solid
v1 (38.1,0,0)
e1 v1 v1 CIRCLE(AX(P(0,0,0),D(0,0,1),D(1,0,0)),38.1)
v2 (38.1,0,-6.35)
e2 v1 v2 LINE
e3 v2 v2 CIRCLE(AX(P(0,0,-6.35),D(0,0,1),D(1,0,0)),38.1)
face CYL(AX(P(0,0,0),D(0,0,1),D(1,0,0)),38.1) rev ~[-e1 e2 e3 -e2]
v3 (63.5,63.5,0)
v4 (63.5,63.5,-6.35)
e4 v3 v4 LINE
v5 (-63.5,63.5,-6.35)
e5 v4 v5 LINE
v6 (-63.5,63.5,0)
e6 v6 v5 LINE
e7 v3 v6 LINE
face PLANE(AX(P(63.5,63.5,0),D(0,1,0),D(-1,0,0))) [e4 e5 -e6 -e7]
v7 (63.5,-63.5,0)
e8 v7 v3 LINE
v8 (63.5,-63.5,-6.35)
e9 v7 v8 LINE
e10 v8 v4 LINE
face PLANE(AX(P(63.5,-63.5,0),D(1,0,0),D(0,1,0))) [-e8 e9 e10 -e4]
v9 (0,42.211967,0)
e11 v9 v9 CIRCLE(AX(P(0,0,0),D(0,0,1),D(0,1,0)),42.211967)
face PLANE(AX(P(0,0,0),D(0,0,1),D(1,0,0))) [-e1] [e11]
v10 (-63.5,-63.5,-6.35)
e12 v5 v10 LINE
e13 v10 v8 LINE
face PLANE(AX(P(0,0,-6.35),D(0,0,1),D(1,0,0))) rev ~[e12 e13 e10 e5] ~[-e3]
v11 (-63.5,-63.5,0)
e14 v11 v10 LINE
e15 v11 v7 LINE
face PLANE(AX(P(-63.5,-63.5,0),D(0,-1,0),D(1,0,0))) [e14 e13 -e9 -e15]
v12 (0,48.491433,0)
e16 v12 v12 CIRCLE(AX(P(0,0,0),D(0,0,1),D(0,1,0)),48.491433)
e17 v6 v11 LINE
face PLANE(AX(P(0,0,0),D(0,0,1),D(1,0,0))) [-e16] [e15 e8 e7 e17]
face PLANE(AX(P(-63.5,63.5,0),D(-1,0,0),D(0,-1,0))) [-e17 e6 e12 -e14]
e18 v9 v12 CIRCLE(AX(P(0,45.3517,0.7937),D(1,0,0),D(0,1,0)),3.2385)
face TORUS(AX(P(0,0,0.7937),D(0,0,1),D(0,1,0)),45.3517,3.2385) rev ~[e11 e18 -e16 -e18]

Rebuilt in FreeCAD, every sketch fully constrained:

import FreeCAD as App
import Part
import Sketcher
from FreeCAD import Vector
Q = App.Units.Quantity


def add_polygon(sketch, points):
    """Adds a closed chain of lines whose ends are joined by coincident constraints."""
    first, n = sketch.GeometryCount, len(points)
    for a, b in zip(points, points[1:] + points[:1]):
        sketch.addGeometry(Part.LineSegment(App.Vector(*a, 0), App.Vector(*b, 0)), False)
    for i in range(n):
        sketch.addConstraint(Sketcher.Constraint("Coincident", first + i, 2, first + (i + 1) % n, 1))

doc = App.newDocument("Part")
body = doc.addObject("PartDesign::Body", "Body")

# Sketch on XY plane
sketch1 = body.newObject("Sketcher::SketchObject", "Sketch")
sketch1.AttachmentSupport = (doc.getObject("XY_Plane"), [""])
sketch1.MapMode = "FlatFace"
add_polygon(sketch1, [(-64, 64), (-64, -64), (64, -64), (64, 64)])  # lines 0-3
sketch1.addGeometry(Part.Circle(Vector(0, 0, 0), Vector(0, 0, 1), 38), False)  # 4
sketch1.addConstraint(Sketcher.Constraint("Vertical", 0))
sketch1.addConstraint(Sketcher.Constraint("Horizontal", 1))
sketch1.addConstraint(Sketcher.Constraint("Vertical", 2))
sketch1.addConstraint(Sketcher.Constraint("Horizontal", 3))
sketch1.addConstraint(Sketcher.Constraint("Coincident", 4, 3, -1, 1))
sketch1.addConstraint(Sketcher.Constraint("Symmetric", 0, 2, 2, 2, -1, 1))
sketch1.addConstraint(Sketcher.Constraint("Equal", 3, 0))
sketch1.addConstraint(Sketcher.Constraint("Diameter", 4, Q("3 in")))
sketch1.addConstraint(Sketcher.Constraint("DistanceX", 1, 1, 1, 2, Q("5 in")))
pad1 = body.newObject("PartDesign::Pad", "Pad")
pad1.Profile = sketch1
pad1.Length = Q("0.25 in")
pad1.Reversed = True

# Sketch on YZ plane
sketch2 = body.newObject("Sketcher::SketchObject", "Sketch001")
sketch2.AttachmentSupport = (doc.getObject("YZ_Plane"), [""])
sketch2.MapMode = "FlatFace"
sketch2.addGeometry(Part.Circle(Vector(45.4, 0.8, 0), Vector(0, 0, 1), 3.2), False)
sketch2.addConstraint(Sketcher.Constraint("Diameter", 0, Q("0.255 in")))
sketch2.addConstraint(Sketcher.Constraint("DistanceY", -1, 1, 0, 3, Q("0.031248 in")))
sketch2.addConstraint(Sketcher.Constraint("DistanceX", -1, 1, 0, 3, Q("1.7855 in")))
groove = body.newObject("PartDesign::Groove", "Groove")
groove.Profile = sketch2
groove.ReferenceAxis = (sketch2, ["V_Axis"])
groove.Angle = 360

doc.recompute()
